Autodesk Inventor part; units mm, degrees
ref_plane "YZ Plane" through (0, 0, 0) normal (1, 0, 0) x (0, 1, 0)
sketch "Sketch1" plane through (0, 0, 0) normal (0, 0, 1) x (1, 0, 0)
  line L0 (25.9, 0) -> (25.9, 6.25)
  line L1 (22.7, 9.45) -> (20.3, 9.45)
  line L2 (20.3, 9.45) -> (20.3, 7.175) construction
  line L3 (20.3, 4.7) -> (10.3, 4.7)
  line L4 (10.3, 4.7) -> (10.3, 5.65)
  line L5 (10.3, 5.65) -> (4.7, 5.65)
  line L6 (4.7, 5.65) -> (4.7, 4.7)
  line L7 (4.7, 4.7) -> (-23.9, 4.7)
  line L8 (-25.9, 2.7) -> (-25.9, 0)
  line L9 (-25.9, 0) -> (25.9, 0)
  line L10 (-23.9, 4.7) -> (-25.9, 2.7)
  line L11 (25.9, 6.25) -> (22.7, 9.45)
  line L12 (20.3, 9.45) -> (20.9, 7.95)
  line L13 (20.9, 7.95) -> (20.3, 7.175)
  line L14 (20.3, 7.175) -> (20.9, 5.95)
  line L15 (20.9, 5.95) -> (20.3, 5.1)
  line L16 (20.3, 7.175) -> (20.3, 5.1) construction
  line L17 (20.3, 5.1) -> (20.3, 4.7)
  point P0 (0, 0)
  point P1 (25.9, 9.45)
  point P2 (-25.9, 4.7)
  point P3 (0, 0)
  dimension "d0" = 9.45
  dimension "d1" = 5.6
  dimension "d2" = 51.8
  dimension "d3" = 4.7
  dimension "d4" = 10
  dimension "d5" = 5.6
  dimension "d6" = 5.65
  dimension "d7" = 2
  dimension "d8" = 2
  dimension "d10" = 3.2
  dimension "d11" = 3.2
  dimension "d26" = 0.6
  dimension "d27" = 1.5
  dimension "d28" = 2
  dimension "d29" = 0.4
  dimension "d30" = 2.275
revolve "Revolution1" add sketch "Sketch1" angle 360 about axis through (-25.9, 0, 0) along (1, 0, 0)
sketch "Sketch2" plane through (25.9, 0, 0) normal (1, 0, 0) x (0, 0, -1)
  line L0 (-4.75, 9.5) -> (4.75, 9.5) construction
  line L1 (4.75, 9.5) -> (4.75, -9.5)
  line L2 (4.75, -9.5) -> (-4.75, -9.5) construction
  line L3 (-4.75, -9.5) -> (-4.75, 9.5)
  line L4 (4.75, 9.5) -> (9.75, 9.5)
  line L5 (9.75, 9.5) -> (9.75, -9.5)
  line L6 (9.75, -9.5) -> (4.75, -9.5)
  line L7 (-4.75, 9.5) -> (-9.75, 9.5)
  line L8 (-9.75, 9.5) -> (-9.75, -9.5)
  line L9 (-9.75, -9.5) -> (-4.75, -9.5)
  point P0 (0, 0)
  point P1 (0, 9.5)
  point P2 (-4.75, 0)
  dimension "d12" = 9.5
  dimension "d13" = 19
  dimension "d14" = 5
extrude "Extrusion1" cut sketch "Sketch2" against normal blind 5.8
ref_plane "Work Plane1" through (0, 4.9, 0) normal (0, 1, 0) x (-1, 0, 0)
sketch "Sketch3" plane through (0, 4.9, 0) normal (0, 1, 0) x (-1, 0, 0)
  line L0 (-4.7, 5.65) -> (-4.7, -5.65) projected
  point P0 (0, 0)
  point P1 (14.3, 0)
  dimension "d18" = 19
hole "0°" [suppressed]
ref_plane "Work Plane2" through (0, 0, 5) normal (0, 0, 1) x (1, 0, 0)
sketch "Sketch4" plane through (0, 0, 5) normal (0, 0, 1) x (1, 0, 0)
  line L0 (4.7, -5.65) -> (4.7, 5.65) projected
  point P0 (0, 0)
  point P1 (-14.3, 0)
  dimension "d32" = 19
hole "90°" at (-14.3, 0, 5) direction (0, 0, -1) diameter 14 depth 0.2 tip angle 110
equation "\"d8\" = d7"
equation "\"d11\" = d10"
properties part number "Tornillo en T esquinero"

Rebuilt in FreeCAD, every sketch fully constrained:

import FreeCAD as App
import Part
import Sketcher
from FreeCAD import Vector
Q = App.Units.Quantity

doc = App.newDocument("Part")
body = doc.addObject("PartDesign::Body", "Body")

sketch1 = doc.addObject("Sketcher::SketchObject", "Sketch")
body.addObject(sketch1)
sketch1.AttachmentSupport = (doc.XY_Plane, [""])
sketch1.MapMode = "FlatFace"
sketch1.addGeometry(Part.LineSegment(Vector(-25.9, 0, 0), Vector(25.9, 0, 0)), False)
sketch1.addGeometry(Part.LineSegment(Vector(25.9, 0, 0), Vector(25.9, 6.25, 0)), False)
sketch1.addGeometry(Part.LineSegment(Vector(25.9, 6.25, 0), Vector(22.7, 9.45, 0)), False)
sketch1.addGeometry(Part.LineSegment(Vector(22.7, 9.45, 0), Vector(20.3, 9.45, 0)), False)
sketch1.addGeometry(Part.LineSegment(Vector(20.3, 9.45, 0), Vector(20.9, 7.95, 0)), False)
sketch1.addGeometry(Part.LineSegment(Vector(20.9, 7.95, 0), Vector(20.3, 7.17, 0)), False)
sketch1.addGeometry(Part.LineSegment(Vector(20.3, 7.17, 0), Vector(20.9, 5.95, 0)), False)
sketch1.addGeometry(Part.LineSegment(Vector(20.9, 5.95, 0), Vector(20.3, 5.1, 0)), False)
sketch1.addGeometry(Part.LineSegment(Vector(20.3, 5.1, 0), Vector(20.3, 4.7, 0)), False)
sketch1.addGeometry(Part.LineSegment(Vector(20.3, 4.7, 0), Vector(10.3, 4.7, 0)), False)
sketch1.addGeometry(Part.LineSegment(Vector(10.3, 4.7, 0), Vector(10.3, 5.65, 0)), False)
sketch1.addGeometry(Part.LineSegment(Vector(10.3, 5.65, 0), Vector(4.7, 5.65, 0)), False)
sketch1.addGeometry(Part.LineSegment(Vector(4.7, 5.65, 0), Vector(4.7, 4.7, 0)), False)
sketch1.addGeometry(Part.LineSegment(Vector(4.7, 4.7, 0), Vector(-23.9, 4.7, 0)), False)
sketch1.addGeometry(Part.LineSegment(Vector(-23.9, 4.7, 0), Vector(-25.9, 2.7, 0)), False)
sketch1.addGeometry(Part.LineSegment(Vector(-25.9, 2.7, 0), Vector(-25.9, 0, 0)), False)
sketch1.addConstraint(Sketcher.Constraint("Coincident", 0, 2, 1, 1))
sketch1.addConstraint(Sketcher.Constraint("Coincident", 1, 2, 2, 1))
sketch1.addConstraint(Sketcher.Constraint("Coincident", 2, 2, 3, 1))
sketch1.addConstraint(Sketcher.Constraint("Coincident", 3, 2, 4, 1))
sketch1.addConstraint(Sketcher.Constraint("Coincident", 4, 2, 5, 1))
sketch1.addConstraint(Sketcher.Constraint("Coincident", 5, 2, 6, 1))
sketch1.addConstraint(Sketcher.Constraint("Coincident", 6, 2, 7, 1))
sketch1.addConstraint(Sketcher.Constraint("Coincident", 7, 2, 8, 1))
sketch1.addConstraint(Sketcher.Constraint("Coincident", 8, 2, 9, 1))
sketch1.addConstraint(Sketcher.Constraint("Coincident", 9, 2, 10, 1))
sketch1.addConstraint(Sketcher.Constraint("Coincident", 10, 2, 11, 1))
sketch1.addConstraint(Sketcher.Constraint("Coincident", 11, 2, 12, 1))
sketch1.addConstraint(Sketcher.Constraint("Coincident", 12, 2, 13, 1))
sketch1.addConstraint(Sketcher.Constraint("Coincident", 13, 2, 14, 1))
sketch1.addConstraint(Sketcher.Constraint("Coincident", 14, 2, 15, 1))
sketch1.addConstraint(Sketcher.Constraint("Coincident", 15, 2, 0, 1))
sketch1.addConstraint(Sketcher.Constraint("Horizontal", 0))
sketch1.addConstraint(Sketcher.Constraint("Vertical", 1))
sketch1.addConstraint(Sketcher.Constraint("Horizontal", 3))
sketch1.addConstraint(Sketcher.Constraint("Vertical", 8))
sketch1.addConstraint(Sketcher.Constraint("Horizontal", 9))
sketch1.addConstraint(Sketcher.Constraint("Vertical", 10))
sketch1.addConstraint(Sketcher.Constraint("Horizontal", 11))
sketch1.addConstraint(Sketcher.Constraint("Vertical", 12))
sketch1.addConstraint(Sketcher.Constraint("Horizontal", 13))
sketch1.addConstraint(Sketcher.Constraint("Vertical", 15))
sketch1.addConstraint(Sketcher.Constraint("Symmetric", 0, 2, 15, 2, -1, 1))
sketch1.addConstraint(Sketcher.Constraint("Perpendicular", 2, 14))
sketch1.addConstraint(Sketcher.Constraint("Horizontal", 9, 2, 12, 2))
sketch1.addConstraint(Sketcher.Constraint("Vertical", 3, 2, 5, 2))
sketch1.addConstraint(Sketcher.Constraint("Vertical", 4, 2, 6, 2))
sketch1.addConstraint(Sketcher.Constraint("Vertical", 5, 2, 7, 2))
sketch1.addConstraint(Sketcher.Constraint("DistanceX", 9, 2, 9, 1, Q("10 mm")))
sketch1.addConstraint(Sketcher.Constraint("DistanceX", 0, 1, 0, 2, Q("51.8 mm")))
sketch1.addConstraint(Sketcher.Constraint("DistanceX", 11, 2, 11, 1, Q("5.6 mm")))
sketch1.addConstraint(Sketcher.Constraint("DistanceY", 8, 2, 8, 1, Q("0.4 mm")))
sketch1.addConstraint(Sketcher.Constraint("DistanceY", 6, 2, 4, 2, Q("2 mm")))
sketch1.addConstraint(Sketcher.Constraint("DistanceX", 14, 2, 13, 2, Q("2 mm")))
sketch1.addConstraint(Sketcher.Constraint("DistanceY", 14, 2, 13, 2, Q("2 mm")))
sketch1.addConstraint(Sketcher.Constraint("DistanceY", -1, 1, 8, 2, Q("4.7 mm")))
sketch1.addConstraint(Sketcher.Constraint("DistanceX", -1, 1, 11, 2, Q("4.7 mm")))
sketch1.addConstraint(Sketcher.Constraint("DistanceX", 2, 2, 1, 2, Q("3.2 mm")))
sketch1.addConstraint(Sketcher.Constraint("DistanceX", 3, 2, 4, 2, Q("0.6 mm")))
sketch1.addConstraint(Sketcher.Constraint("DistanceY", 4, 2, 3, 2, Q("1.5 mm")))
sketch1.addConstraint(Sketcher.Constraint("DistanceY", -1, 1, 2, 2, Q("9.45 mm")))
sketch1.addConstraint(Sketcher.Constraint("DistanceY", -1, 1, 10, 2, Q("5.65 mm")))
sketch1.addConstraint(Sketcher.Constraint("DistanceY", 5, 2, 3, 2, Q("2.275 mm")))
revolution = doc.addObject("PartDesign::Revolution", "Revolution")
body.addObject(revolution)
revolution.Profile = sketch1
revolution.ReferenceAxis = (sketch1, ["H_Axis"])
revolution.Angle = 360

sketch2 = doc.addObject("Sketcher::SketchObject", "Sketch001")
body.addObject(sketch2)
sketch2.AttachmentSupport = (doc.YZ_Plane, [""])
sketch2.MapMode = "FlatFace"
sketch2.AttachmentOffset = App.Placement(Vector(0, 0, 25.9), App.Rotation())
sketch2.addGeometry(Part.LineSegment(Vector(10, -10, 0), Vector(10, -5, 0)), False)
sketch2.addGeometry(Part.LineSegment(Vector(10, -5, 0), Vector(-10, -5, 0)), False)
sketch2.addGeometry(Part.LineSegment(Vector(-10, -5, 0), Vector(-10, -10, 0)), False)
sketch2.addGeometry(Part.LineSegment(Vector(-10, -10, 0), Vector(10, -10, 0)), False)
sketch2.addGeometry(Part.LineSegment(Vector(-10, 10, 0), Vector(-10, 5, 0)), False)
sketch2.addGeometry(Part.LineSegment(Vector(-10, 5, 0), Vector(10, 5, 0)), False)
sketch2.addGeometry(Part.LineSegment(Vector(10, 5, 0), Vector(10, 10, 0)), False)
sketch2.addGeometry(Part.LineSegment(Vector(10, 10, 0), Vector(-10, 10, 0)), False)
sketch2.addConstraint(Sketcher.Constraint("Coincident", 0, 2, 1, 1))
sketch2.addConstraint(Sketcher.Constraint("Coincident", 1, 2, 2, 1))
sketch2.addConstraint(Sketcher.Constraint("Coincident", 2, 2, 3, 1))
sketch2.addConstraint(Sketcher.Constraint("Coincident", 3, 2, 0, 1))
sketch2.addConstraint(Sketcher.Constraint("Coincident", 4, 2, 5, 1))
sketch2.addConstraint(Sketcher.Constraint("Coincident", 5, 2, 6, 1))
sketch2.addConstraint(Sketcher.Constraint("Coincident", 6, 2, 7, 1))
sketch2.addConstraint(Sketcher.Constraint("Coincident", 7, 2, 4, 1))
sketch2.addConstraint(Sketcher.Constraint("Vertical", 0))
sketch2.addConstraint(Sketcher.Constraint("Horizontal", 1))
sketch2.addConstraint(Sketcher.Constraint("Vertical", 2))
sketch2.addConstraint(Sketcher.Constraint("Horizontal", 3))
sketch2.addConstraint(Sketcher.Constraint("Vertical", 4))
sketch2.addConstraint(Sketcher.Constraint("Horizontal", 5))
sketch2.addConstraint(Sketcher.Constraint("Vertical", 6))
sketch2.addConstraint(Sketcher.Constraint("Horizontal", 7))
sketch2.addConstraint(Sketcher.Constraint("Symmetric", 0, 2, 4, 2, -1, 1))
sketch2.addConstraint(Sketcher.Constraint("Symmetric", 2, 2, 6, 2, -1, 1))
sketch2.addConstraint(Sketcher.Constraint("Vertical", 2, 2, 4, 2))
sketch2.addConstraint(Sketcher.Constraint("DistanceX", 1, 2, 1, 1, Q("19 mm")))
sketch2.addConstraint(Sketcher.Constraint("DistanceY", 0, 1, 0, 2, Q("5 mm")))
sketch2.addConstraint(Sketcher.Constraint("DistanceY", 1, 2, 4, 2, Q("9.5 mm")))
pocket1 = doc.addObject("PartDesign::Pocket", "Pocket")
body.addObject(pocket1)
pocket1.Profile = sketch2
pocket1.Length = 5.8

sketch3 = doc.addObject("Sketcher::SketchObject", "Sketch002")
body.addObject(sketch3)
sketch3.AttachmentSupport = (doc.XY_Plane, [""])
sketch3.MapMode = "FlatFace"
sketch3.AttachmentOffset = App.Placement(Vector(0, 0, 5), App.Rotation())
sketch3.addGeometry(Part.Circle(Vector(-14, 0, 0), Vector(0, 0, 1), 7), False)
sketch3.addConstraint(Sketcher.Constraint("PointOnObject", 0, 3, -1))
sketch3.addConstraint(Sketcher.Constraint("Diameter", 0, Q("14 mm")))
sketch3.addConstraint(Sketcher.Constraint("DistanceX", 0, 3, -1, 1, Q("14.3 mm")))
doc.recompute()
hole = doc.addObject("PartDesign::Hole", "Hole")
body.addObject(hole)
hole.Profile = sketch3
hole.ThreadType = "None"
hole.Diameter = 14
hole.DepthType = "Dimension"
hole.Depth = 0.2
hole.DrillPoint = "Angled"
hole.DrillPointAngle = 110

doc.recompute()
